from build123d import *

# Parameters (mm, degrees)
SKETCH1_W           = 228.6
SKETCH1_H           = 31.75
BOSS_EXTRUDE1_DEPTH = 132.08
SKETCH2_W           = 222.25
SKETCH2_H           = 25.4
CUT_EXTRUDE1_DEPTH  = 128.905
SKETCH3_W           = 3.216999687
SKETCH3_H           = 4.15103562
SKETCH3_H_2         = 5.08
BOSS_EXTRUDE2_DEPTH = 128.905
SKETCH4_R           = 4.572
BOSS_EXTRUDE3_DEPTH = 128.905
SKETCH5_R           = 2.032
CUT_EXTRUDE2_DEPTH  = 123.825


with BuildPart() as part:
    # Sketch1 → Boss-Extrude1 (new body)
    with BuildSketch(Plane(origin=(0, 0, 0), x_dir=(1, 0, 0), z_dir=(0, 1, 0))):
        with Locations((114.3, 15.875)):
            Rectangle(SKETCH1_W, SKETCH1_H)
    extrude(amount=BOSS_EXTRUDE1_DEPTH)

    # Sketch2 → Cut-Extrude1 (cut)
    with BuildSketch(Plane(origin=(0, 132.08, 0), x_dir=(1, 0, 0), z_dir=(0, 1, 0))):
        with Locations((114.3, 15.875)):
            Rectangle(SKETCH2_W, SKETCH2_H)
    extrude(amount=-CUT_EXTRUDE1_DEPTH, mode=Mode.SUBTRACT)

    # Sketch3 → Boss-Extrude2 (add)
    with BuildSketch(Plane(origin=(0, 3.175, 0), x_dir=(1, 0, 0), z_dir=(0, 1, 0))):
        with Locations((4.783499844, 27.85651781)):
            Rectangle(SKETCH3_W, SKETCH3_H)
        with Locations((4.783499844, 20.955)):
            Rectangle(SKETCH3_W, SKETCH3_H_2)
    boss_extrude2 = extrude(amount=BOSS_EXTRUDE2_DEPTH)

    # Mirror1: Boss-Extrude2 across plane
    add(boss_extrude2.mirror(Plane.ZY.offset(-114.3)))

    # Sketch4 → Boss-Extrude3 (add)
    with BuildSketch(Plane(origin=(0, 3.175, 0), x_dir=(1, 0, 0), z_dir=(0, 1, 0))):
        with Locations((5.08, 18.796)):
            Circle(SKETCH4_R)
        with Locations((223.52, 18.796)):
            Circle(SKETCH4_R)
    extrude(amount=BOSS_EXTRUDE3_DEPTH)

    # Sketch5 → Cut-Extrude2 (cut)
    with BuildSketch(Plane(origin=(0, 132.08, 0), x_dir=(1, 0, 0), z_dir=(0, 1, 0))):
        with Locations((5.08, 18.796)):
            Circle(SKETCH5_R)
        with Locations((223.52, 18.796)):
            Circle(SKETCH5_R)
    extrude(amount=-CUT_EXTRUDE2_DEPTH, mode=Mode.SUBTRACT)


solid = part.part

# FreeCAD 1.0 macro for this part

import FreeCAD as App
import Part
import Sketcher

V = App.Vector
Q = App.Units.Quantity


def add_polygon(sketch, points):
    """Adds a closed chain of lines whose ends are joined by coincident constraints."""
    first, n = sketch.GeometryCount, len(points)
    for a, b in zip(points, points[1:] + points[:1]):
        sketch.addGeometry(Part.LineSegment(App.Vector(*a, 0), App.Vector(*b, 0)), False)
    for i in range(n):
        sketch.addConstraint(Sketcher.Constraint("Coincident", first + i, 2, first + (i + 1) % n, 1))

doc = App.newDocument("Part")
body = doc.addObject("PartDesign::Body", "Body")

sketch1 = body.newObject("Sketcher::SketchObject", "Sketch")
sketch1.AttachmentSupport = (doc.getObject("XZ_Plane"), [""])
sketch1.MapMode = "FlatFace"
add_polygon(sketch1, [(0, -32), (0, 0), (229, 0), (229, -32)])
sketch1.addConstraint([
    Sketcher.Constraint("Vertical", 0),
    Sketcher.Constraint("Horizontal", 1),
    Sketcher.Constraint("Vertical", 2),
    Sketcher.Constraint("Horizontal", 3),
    Sketcher.Constraint("Coincident", 0, 2, -1, 1),
    Sketcher.Constraint("DistanceX", 1, 1, 1, 2, Q("9 in")),
    Sketcher.Constraint("DistanceY", 0, 1, 0, 2, Q("1.25 in")),
])
pad1 = body.newObject("PartDesign::Pad", "Pad")
pad1.Profile = sketch1
pad1.Length = Q("5.2 in")
pad1.Reversed = True

sketch2 = body.newObject("Sketcher::SketchObject", "Sketch001")
sketch2.AttachmentSupport = (doc.getObject("XZ_Plane"), [""])
sketch2.MapMode = "FlatFace"
sketch2.AttachmentOffset = App.Placement(V(0, 0, -5.2 * 25.4), App.Rotation())
add_polygon(sketch2, [(3, -29), (3, -3), (225, -3), (225, -29)])
sketch2.addConstraint([
    Sketcher.Constraint("Vertical", 0),
    Sketcher.Constraint("Horizontal", 1),
    Sketcher.Constraint("Vertical", 2),
    Sketcher.Constraint("Horizontal", 3),
    Sketcher.Constraint("DistanceY", 0, 1, 0, 2, Q("1 in")),
    Sketcher.Constraint("DistanceX", 1, 1, 1, 2, Q("8.75 in")),
    Sketcher.Constraint("DistanceX", -1, 1, 0, 2, Q("0.125 in")),
    Sketcher.Constraint("DistanceY", 0, 2, -1, 1, Q("0.125 in")),
])
pocket1 = body.newObject("PartDesign::Pocket", "Pocket")
pocket1.Profile = sketch2
pocket1.Length = Q("5.075 in")
pocket1.Reversed = True

sketch3 = body.newObject("Sketcher::SketchObject", "Sketch002")
sketch3.AttachmentSupport = (doc.getObject("XZ_Plane"), [""])
sketch3.MapMode = "FlatFace"
sketch3.AttachmentOffset = App.Placement(V(0, 0, -0.125 * 25.4), App.Rotation())
add_polygon(sketch3, [(3.2, -29.9), (3.2, -25.8), (6.4, -25.8), (6.4, -29.9)])
add_polygon(sketch3, [(3.2, -23.5), (3.2, -18.4), (6.4, -18.4), (6.4, -23.5)])
sketch3.addConstraint([
    Sketcher.Constraint("Vertical", 0),
    Sketcher.Constraint("Horizontal", 1),
    Sketcher.Constraint("Vertical", 2),
    Sketcher.Constraint("Horizontal", 3),
    Sketcher.Constraint("Vertical", 4),
    Sketcher.Constraint("Horizontal", 5),
    Sketcher.Constraint("Vertical", 6),
    Sketcher.Constraint("Horizontal", 7),
    Sketcher.Constraint("Vertical", 3, 2, 4, 2),
    Sketcher.Constraint("Vertical", 2, 2, 5, 2),
    Sketcher.Constraint("DistanceY", 4, 1, 4, 2, Q("0.2 in")),
    Sketcher.Constraint("DistanceY", 0, 2, 4, 2, Q("0.29 in")),
    Sketcher.Constraint("DistanceX", -1, 1, 0, 2, Q("0.125 in")),
    Sketcher.Constraint("DistanceY", 0, 2, -1, 1, Q("1.015 in")),
    Sketcher.Constraint("DistanceX", 1, 1, 1, 2, Q("3.217 mm")),
    Sketcher.Constraint("DistanceY", 0, 1, 0, 2, Q("4.151036 mm")),
])
pad2 = body.newObject("PartDesign::Pad", "Pad001")
pad2.Profile = sketch3
pad2.Length = Q("5.075 in")
pad2.Reversed = True
doc.recompute()

datumplane = body.newObject("PartDesign::Plane", "DatumPlane")
datumplane.AttachmentSupport = (doc.getObject("YZ_Plane"), [""])
datumplane.MapMode = "FlatFace"
datumplane.AttachmentOffset = App.Placement(V(0, 0, 4.5 * 25.4), App.Rotation())
mirrored = body.newObject("PartDesign::Mirrored", "Mirrored")
mirrored.Originals = [pad2]
mirrored.MirrorPlane = (datumplane, [""])
body.Tip = mirrored

sketch4 = body.newObject("Sketcher::SketchObject", "Sketch003")
sketch4.AttachmentSupport = (doc.getObject("XZ_Plane"), [""])
sketch4.MapMode = "FlatFace"
sketch4.AttachmentOffset = App.Placement(V(0, 0, -0.125 * 25.4), App.Rotation())
sketch4.addGeometry([
    Part.Circle(V(5.1, -18.8, 0), V(0, 0, 1), 4.6),
    Part.Circle(V(223.5, -18.8, 0), V(0, 0, 1), 4.6),
], False)
sketch4.addConstraint([
    Sketcher.Constraint("Equal", 0, 1),
    Sketcher.Constraint("Horizontal", 0, 3, 1, 3),
    Sketcher.Constraint("Diameter", 0, Q("0.36 in")),
    Sketcher.Constraint("DistanceX", -1, 1, 0, 3, Q("0.2 in")),
    Sketcher.Constraint("DistanceX", -1, 1, 1, 3, Q("8.8 in")),
    Sketcher.Constraint("DistanceY", 0, 3, -1, 1, Q("0.74 in")),
])
pad3 = body.newObject("PartDesign::Pad", "Pad002")
pad3.Profile = sketch4
pad3.Length = Q("5.075 in")
pad3.Reversed = True

sketch5 = body.newObject("Sketcher::SketchObject", "Sketch004")
sketch5.AttachmentSupport = (doc.getObject("XZ_Plane"), [""])
sketch5.MapMode = "FlatFace"
sketch5.AttachmentOffset = App.Placement(V(0, 0, -5.2 * 25.4), App.Rotation())
sketch5.addGeometry([
    Part.Circle(V(5.1, -18.8, 0), V(0, 0, 1), 2),
    Part.Circle(V(223.5, -18.8, 0), V(0, 0, 1), 2),
], False)
sketch5.addConstraint([
    Sketcher.Constraint("Equal", 0, 1),
    Sketcher.Constraint("Horizontal", 0, 3, 1, 3),
    Sketcher.Constraint("Diameter", 0, Q("0.16 in")),
    Sketcher.Constraint("DistanceX", -1, 1, 0, 3, Q("0.2 in")),
    Sketcher.Constraint("DistanceX", -1, 1, 1, 3, Q("8.8 in")),
    Sketcher.Constraint("DistanceY", 0, 3, -1, 1, Q("0.74 in")),
])
pocket2 = body.newObject("PartDesign::Pocket", "Pocket001")
pocket2.Profile = sketch5
pocket2.Length = Q("4.875 in")
pocket2.Reversed = True

doc.recompute()
